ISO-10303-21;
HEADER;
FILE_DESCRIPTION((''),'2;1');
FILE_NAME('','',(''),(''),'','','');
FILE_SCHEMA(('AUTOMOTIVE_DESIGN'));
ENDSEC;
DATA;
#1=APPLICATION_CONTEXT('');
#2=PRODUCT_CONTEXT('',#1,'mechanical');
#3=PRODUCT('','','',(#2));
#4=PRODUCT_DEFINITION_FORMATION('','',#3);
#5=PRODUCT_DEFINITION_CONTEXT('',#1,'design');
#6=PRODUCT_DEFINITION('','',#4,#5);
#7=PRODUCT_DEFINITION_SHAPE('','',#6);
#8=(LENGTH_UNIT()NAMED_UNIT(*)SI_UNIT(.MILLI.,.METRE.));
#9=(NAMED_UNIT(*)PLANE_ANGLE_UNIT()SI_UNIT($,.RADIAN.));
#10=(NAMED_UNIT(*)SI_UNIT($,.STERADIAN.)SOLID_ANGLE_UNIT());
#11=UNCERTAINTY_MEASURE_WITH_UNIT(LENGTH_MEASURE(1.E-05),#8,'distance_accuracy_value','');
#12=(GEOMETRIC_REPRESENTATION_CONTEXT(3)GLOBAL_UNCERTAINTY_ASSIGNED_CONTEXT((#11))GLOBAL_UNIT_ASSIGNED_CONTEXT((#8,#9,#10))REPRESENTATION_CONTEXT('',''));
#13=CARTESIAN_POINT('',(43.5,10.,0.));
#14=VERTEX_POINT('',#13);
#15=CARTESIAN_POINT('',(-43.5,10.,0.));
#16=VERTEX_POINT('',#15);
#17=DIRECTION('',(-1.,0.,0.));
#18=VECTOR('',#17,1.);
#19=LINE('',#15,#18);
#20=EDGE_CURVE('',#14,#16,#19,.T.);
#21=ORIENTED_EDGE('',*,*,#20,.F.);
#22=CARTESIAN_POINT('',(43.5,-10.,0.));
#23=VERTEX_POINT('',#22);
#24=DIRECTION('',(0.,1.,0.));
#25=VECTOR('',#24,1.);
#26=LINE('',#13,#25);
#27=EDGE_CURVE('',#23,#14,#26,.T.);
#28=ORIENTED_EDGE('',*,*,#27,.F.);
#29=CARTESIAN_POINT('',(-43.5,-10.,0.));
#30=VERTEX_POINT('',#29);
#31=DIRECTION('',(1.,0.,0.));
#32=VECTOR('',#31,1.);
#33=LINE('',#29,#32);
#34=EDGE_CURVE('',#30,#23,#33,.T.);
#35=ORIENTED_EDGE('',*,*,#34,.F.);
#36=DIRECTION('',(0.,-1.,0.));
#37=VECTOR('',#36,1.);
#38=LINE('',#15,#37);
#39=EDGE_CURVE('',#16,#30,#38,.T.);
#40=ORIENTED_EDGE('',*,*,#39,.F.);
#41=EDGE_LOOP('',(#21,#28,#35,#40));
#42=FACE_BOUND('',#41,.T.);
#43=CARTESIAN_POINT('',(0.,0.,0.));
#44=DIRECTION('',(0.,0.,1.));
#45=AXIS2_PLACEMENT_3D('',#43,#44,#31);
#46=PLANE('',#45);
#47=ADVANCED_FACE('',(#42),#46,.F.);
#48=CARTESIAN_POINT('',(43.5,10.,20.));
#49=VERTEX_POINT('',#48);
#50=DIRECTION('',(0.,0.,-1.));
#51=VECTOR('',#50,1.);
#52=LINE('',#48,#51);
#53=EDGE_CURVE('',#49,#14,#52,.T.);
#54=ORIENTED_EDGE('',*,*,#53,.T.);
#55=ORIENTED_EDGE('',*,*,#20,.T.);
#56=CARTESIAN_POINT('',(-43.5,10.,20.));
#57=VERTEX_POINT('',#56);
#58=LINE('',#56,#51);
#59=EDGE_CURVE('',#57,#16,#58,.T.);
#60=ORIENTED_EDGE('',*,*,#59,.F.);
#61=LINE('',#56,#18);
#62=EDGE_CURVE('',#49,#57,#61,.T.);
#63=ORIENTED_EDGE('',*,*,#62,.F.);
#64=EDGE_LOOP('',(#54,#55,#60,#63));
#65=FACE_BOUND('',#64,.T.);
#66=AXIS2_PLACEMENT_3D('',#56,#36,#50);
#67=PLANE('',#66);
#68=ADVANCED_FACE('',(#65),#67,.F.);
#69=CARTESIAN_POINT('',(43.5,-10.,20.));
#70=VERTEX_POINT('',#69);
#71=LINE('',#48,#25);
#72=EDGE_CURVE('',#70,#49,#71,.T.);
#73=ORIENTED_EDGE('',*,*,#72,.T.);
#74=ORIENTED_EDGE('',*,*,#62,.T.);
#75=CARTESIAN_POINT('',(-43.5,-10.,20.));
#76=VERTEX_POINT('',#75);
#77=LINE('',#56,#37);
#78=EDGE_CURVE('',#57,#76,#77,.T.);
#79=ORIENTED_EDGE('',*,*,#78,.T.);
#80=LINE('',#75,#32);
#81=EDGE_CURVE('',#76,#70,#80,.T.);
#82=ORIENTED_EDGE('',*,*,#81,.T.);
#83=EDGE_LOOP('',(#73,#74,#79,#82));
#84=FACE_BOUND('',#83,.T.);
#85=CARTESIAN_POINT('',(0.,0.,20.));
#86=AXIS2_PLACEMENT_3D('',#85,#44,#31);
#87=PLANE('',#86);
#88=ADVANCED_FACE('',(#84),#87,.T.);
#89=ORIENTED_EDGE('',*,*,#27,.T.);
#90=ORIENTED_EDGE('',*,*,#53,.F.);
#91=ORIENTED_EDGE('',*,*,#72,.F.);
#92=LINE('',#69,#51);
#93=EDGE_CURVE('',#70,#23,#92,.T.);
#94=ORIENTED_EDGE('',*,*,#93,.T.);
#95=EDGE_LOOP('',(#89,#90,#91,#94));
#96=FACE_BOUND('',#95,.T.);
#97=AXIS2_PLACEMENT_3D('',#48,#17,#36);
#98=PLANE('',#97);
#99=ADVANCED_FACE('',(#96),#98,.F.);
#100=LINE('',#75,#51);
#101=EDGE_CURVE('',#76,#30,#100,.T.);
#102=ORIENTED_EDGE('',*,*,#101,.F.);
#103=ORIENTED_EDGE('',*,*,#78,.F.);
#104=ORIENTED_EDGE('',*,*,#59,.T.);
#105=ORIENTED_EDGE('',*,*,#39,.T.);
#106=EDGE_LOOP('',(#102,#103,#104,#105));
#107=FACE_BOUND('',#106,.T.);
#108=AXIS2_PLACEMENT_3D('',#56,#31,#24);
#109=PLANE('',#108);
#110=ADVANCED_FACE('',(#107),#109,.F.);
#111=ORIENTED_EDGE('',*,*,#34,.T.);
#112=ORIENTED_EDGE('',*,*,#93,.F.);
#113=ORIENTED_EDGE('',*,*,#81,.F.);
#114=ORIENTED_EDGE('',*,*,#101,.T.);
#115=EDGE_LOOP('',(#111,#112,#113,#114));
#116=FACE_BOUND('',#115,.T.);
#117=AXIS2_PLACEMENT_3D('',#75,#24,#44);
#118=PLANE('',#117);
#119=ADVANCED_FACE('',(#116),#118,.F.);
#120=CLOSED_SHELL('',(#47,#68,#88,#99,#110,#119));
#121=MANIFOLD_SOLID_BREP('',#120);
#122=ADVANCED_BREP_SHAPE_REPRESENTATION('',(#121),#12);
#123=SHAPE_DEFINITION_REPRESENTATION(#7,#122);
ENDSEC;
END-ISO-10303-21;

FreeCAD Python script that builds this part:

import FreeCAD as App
import Part
import Sketcher

V = App.Vector
Q = App.Units.Quantity


def add_polygon(sketch, points):
    """Adds a closed chain of lines whose ends are joined by coincident constraints."""
    first, n = sketch.GeometryCount, len(points)
    for a, b in zip(points, points[1:] + points[:1]):
        sketch.addGeometry(Part.LineSegment(App.Vector(*a, 0), App.Vector(*b, 0)), False)
    for i in range(n):
        sketch.addConstraint(Sketcher.Constraint("Coincident", first + i, 2, first + (i + 1) % n, 1))

doc = App.newDocument("Part")
params = doc.addObject("Spreadsheet::Sheet", "Params")
for row, (alias, value) in enumerate([
    ("sketch1_width", "87 mm"),
    ("sketch1_height", "20 mm"),
    ("pad1_length", "20 mm"),
], start=1):
    params.set(f"A{row}", alias)
    params.set(f"B{row}", "=" + value)
    params.setAlias(f"B{row}", alias)

body = doc.addObject("PartDesign::Body", "Body")

# Sketch on XY plane
sketch1 = doc.addObject("Sketcher::SketchObject", "Sketch")
body.addObject(sketch1)
sketch1.AttachmentSupport = (doc.XY_Plane, [""])
sketch1.MapMode = "FlatFace"
add_polygon(sketch1, [(-43.5, 10), (-43.5, -10), (43.5, -10), (43.5, 10)])  # lines 0-3
sketch1.addConstraint([
    Sketcher.Constraint("Vertical", 0),
    Sketcher.Constraint("Horizontal", 1),
    Sketcher.Constraint("Vertical", 2),
    Sketcher.Constraint("Horizontal", 3),
    Sketcher.Constraint("Symmetric", 0, 2, 2, 2, -1, 1),
    Sketcher.Constraint("DistanceX", 1, 1, 1, 2, Q("87 mm")),
    Sketcher.Constraint("DistanceY", 0, 2, 0, 1, Q("20 mm")),
])
sketch1.setExpression("Constraints[9]", "Params.sketch1_width")
sketch1.setExpression("Constraints[10]", "Params.sketch1_height")
pad1 = doc.addObject("PartDesign::Pad", "Pad")
body.addObject(pad1)
pad1.Profile = sketch1
pad1.setExpression("Length", "Params.pad1_length")

doc.recompute()
